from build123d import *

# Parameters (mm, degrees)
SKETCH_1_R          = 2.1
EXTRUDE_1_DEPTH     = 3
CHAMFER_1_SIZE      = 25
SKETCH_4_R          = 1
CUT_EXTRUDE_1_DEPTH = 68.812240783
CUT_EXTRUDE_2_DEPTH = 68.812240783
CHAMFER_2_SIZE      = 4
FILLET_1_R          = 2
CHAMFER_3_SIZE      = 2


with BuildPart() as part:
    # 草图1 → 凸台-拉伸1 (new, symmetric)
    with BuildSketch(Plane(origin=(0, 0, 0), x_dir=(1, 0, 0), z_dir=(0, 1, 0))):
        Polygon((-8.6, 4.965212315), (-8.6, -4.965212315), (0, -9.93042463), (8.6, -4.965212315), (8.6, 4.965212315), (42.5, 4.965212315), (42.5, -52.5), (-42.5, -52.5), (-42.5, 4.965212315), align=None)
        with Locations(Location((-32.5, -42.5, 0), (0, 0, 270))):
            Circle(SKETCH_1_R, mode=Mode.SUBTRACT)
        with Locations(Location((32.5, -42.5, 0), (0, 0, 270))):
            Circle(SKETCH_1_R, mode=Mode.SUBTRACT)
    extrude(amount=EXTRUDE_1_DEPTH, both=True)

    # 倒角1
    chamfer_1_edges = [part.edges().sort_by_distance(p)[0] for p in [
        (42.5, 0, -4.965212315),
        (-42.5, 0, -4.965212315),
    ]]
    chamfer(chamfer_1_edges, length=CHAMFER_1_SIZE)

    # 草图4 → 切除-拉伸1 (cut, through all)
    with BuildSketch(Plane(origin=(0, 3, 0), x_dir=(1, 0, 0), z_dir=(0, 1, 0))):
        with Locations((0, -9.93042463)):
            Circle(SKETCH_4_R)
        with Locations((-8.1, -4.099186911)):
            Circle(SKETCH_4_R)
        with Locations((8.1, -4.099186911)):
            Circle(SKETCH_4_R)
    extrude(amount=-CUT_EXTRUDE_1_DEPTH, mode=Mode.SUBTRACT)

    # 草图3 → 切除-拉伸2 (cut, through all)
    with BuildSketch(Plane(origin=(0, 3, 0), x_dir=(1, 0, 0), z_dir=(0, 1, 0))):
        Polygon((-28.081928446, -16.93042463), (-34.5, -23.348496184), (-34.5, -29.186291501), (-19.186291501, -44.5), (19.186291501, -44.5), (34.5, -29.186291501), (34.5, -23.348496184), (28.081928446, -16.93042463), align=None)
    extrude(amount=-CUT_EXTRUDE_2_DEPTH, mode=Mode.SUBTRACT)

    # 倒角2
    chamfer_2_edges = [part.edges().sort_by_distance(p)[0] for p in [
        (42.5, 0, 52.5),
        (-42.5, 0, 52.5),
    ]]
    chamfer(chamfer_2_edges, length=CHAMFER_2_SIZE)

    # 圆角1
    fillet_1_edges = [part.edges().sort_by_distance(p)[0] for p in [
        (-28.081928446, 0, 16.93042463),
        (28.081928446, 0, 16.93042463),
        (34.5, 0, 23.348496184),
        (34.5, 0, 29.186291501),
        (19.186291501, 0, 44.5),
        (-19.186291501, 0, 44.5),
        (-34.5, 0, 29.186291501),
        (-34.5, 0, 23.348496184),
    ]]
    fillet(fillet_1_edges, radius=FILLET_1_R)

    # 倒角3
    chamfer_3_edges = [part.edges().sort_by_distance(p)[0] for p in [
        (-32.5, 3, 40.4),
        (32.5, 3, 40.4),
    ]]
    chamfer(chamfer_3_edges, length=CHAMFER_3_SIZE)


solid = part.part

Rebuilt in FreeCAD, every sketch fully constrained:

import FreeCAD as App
import Part
import Sketcher

V = App.Vector
Q = App.Units.Quantity


def edges_at(feature, points):
    """Names of the edges that pass closest to the given points."""
    edges = feature.Shape.Edges
    near = lambda p: min(range(len(edges)), key=lambda i: edges[i].distToShape(Part.Vertex(*p))[0])
    return sorted({f"Edge{near(p) + 1}" for p in points})


def add_polygon(sketch, points):
    """Adds a closed chain of lines whose ends are joined by coincident constraints."""
    first, n = sketch.GeometryCount, len(points)
    for a, b in zip(points, points[1:] + points[:1]):
        sketch.addGeometry(Part.LineSegment(App.Vector(*a, 0), App.Vector(*b, 0)), False)
    for i in range(n):
        sketch.addConstraint(Sketcher.Constraint("Coincident", first + i, 2, first + (i + 1) % n, 1))

doc = App.newDocument("Part")
body = doc.addObject("PartDesign::Body", "Body")

# Sketch on XZ plane
sketch1 = doc.addObject("Sketcher::SketchObject", "Sketch")
body.addObject(sketch1)
sketch1.AttachmentSupport = (doc.XZ_Plane, [""])
sketch1.MapMode = "FlatFace"
add_polygon(sketch1, [(-8.6, 4.965212), (-8.6, -4.965212), (-42.5, -4.965212), (-42.5, 52.5), (42.5, 52.5), (42.5, -4.965212), (8.6, -4.965212), (8.6, 4.965212), (0, 9.930425)])  # lines 0-8
sketch1.addGeometry(Part.Circle(V(32.5, 42.5, 0), V(0, 0, 1), 2.1), False)  # 9
sketch1.addGeometry(Part.Circle(V(-32.5, 42.5, 0), V(0, 0, 1), 2.1), False)  # 10
sketch1.addConstraint([
    Sketcher.Constraint("Vertical", 0),
    Sketcher.Constraint("Horizontal", 1),
    Sketcher.Constraint("Vertical", 2),
    Sketcher.Constraint("Horizontal", 3),
    Sketcher.Constraint("Vertical", 4),
    Sketcher.Constraint("Horizontal", 5),
    Sketcher.Constraint("Vertical", 6),
    Sketcher.Constraint("Equal", 9, 10),
    Sketcher.Constraint("Symmetric", 0, 2, 6, 2, -1, 1),
    Sketcher.Constraint("Symmetric", 9, 3, 10, 3, -2),
    Sketcher.Constraint("Symmetric", 1, 2, 4, 2, -2),
    Sketcher.Constraint("PointOnObject", 7, 2, -2),
    Sketcher.Constraint("Horizontal", 6, 2, 8, 2),
    Sketcher.Constraint("Diameter", 9, Q("4.2 mm")),
    Sketcher.Constraint("DistanceX", 3, 1, 3, 2, Q("85 mm")),
    Sketcher.Constraint("Angle", 7, Q("150 deg")),
    Sketcher.Constraint("DistanceX", 1, 2, 1, 1, Q("33.9 mm")),
    Sketcher.Constraint("DistanceX", 10, 3, 9, 3, Q("65 mm")),
    Sketcher.Constraint("DistanceY", 10, 3, 2, 2, Q("10 mm")),
    Sketcher.Constraint("DistanceY", -1, 1, 9, 3, Q("42.5 mm")),
    Sketcher.Constraint("DistanceY", 0, 2, 0, 1, Q("9.930425 mm")),
])
pad1 = doc.addObject("PartDesign::Pad", "Pad")
body.addObject(pad1)
pad1.Profile = sketch1
pad1.Length = 6
pad1.Midplane = True
doc.recompute()

chamfer = doc.addObject("PartDesign::Chamfer", "Chamfer")
body.addObject(chamfer)
chamfer.Base = (pad1, edges_at(pad1, [(42.5, 0, -4.965), (-42.5, 0, -4.965)]))
chamfer.Size = 25

# Sketch on XZ plane
sketch2 = doc.addObject("Sketcher::SketchObject", "Sketch001")
body.addObject(sketch2)
sketch2.AttachmentSupport = (doc.XZ_Plane, [""])
sketch2.MapMode = "FlatFace"
sketch2.AttachmentOffset = App.Placement(V(0, 0, -3), App.Rotation())
sketch2.addGeometry([
    Part.Circle(V(0, 9.930425, 0), V(0, 0, 1), 1),
    Part.Circle(V(-8.1, 4.099187, 0), V(0, 0, 1), 1),
    Part.Circle(V(8.1, 4.099187, 0), V(0, 0, 1), 1),
], False)
sketch2.addConstraint([
    Sketcher.Constraint("Equal", 0, 1),
    Sketcher.Constraint("Equal", 1, 2),
    Sketcher.Constraint("Symmetric", 1, 3, 2, 3, -2),
    Sketcher.Constraint("PointOnObject", 0, 3, -2),
    Sketcher.Constraint("Diameter", 0, Q("2 mm")),
    Sketcher.Constraint("DistanceX", 1, 3, -1, 1, Q("8.1 mm")),
    Sketcher.Constraint("DistanceY", -1, 1, 0, 3, Q("9.930425 mm")),
    Sketcher.Constraint("DistanceY", -1, 1, 1, 3, Q("4.099187 mm")),
])
pocket1 = doc.addObject("PartDesign::Pocket", "Pocket")
body.addObject(pocket1)
pocket1.Profile = sketch2
pocket1.Type = "ThroughAll"
pocket1.Reversed = True

# Sketch on XZ plane
sketch3 = doc.addObject("Sketcher::SketchObject", "Sketch002")
body.addObject(sketch3)
sketch3.AttachmentSupport = (doc.XZ_Plane, [""])
sketch3.MapMode = "FlatFace"
sketch3.AttachmentOffset = App.Placement(V(0, 0, -3), App.Rotation())
add_polygon(sketch3, [(-28.081928, 16.930425), (-34.5, 23.348496), (-34.5, 29.186292), (-19.186292, 44.5), (19.186292, 44.5), (34.5, 29.186292), (34.5, 23.348496), (28.081928, 16.930425)])  # lines 0-7
sketch3.addConstraint([
    Sketcher.Constraint("Vertical", 1),
    Sketcher.Constraint("Horizontal", 3),
    Sketcher.Constraint("Vertical", 5),
    Sketcher.Constraint("Horizontal", 7),
    Sketcher.Constraint("Symmetric", 1, 2, 4, 2, -2),
    Sketcher.Constraint("Perpendicular", 0, 2),
    Sketcher.Constraint("Perpendicular", 2, 4),
    Sketcher.Constraint("Perpendicular", 4, 6),
    Sketcher.Constraint("Horizontal", 0, 2, 5, 2),
    Sketcher.Constraint("Equal", 2, 4),
    Sketcher.Constraint("DistanceX", 1, 2, 4, 2, Q("69 mm")),
    Sketcher.Constraint("DistanceY", -1, 1, 2, 2, Q("44.5 mm")),
    Sketcher.Constraint("DistanceX", 3, 1, 3, 2, Q("38.372583 mm")),
    Sketcher.Constraint("DistanceX", 7, 2, 7, 1, Q("56.163857 mm")),
    Sketcher.Constraint("DistanceY", 1, 1, 1, 2, Q("5.837795 mm")),
])
pocket2 = doc.addObject("PartDesign::Pocket", "Pocket001")
body.addObject(pocket2)
pocket2.Profile = sketch3
pocket2.Type = "ThroughAll"
pocket2.Reversed = True
doc.recompute()

chamfer2 = doc.addObject("PartDesign::Chamfer", "Chamfer001")
body.addObject(chamfer2)
chamfer2.Base = (pocket2, edges_at(pocket2, [(42.5, 0, 52.5), (-42.5, 0, 52.5)]))
chamfer2.Size = 4
doc.recompute()

fillet = doc.addObject("PartDesign::Fillet", "Fillet")
body.addObject(fillet)
fillet.Base = (chamfer2, edges_at(chamfer2, [
    (-28.082, 0, 16.93),
    (28.082, 0, 16.93),
    (34.5, 0, 23.348),
    (34.5, 0, 29.186),
    (19.186, 0, 44.5),
    (-19.186, 0, 44.5),
    (-34.5, 0, 29.186),
    (-34.5, 0, 23.348),
]))
fillet.Radius = 2
doc.recompute()

chamfer3 = doc.addObject("PartDesign::Chamfer", "Chamfer002")
body.addObject(chamfer3)
chamfer3.Base = (fillet, edges_at(fillet, [(-32.5, 3, 40.4), (32.5, 3, 40.4)]))
chamfer3.Size = 2

doc.recompute()
